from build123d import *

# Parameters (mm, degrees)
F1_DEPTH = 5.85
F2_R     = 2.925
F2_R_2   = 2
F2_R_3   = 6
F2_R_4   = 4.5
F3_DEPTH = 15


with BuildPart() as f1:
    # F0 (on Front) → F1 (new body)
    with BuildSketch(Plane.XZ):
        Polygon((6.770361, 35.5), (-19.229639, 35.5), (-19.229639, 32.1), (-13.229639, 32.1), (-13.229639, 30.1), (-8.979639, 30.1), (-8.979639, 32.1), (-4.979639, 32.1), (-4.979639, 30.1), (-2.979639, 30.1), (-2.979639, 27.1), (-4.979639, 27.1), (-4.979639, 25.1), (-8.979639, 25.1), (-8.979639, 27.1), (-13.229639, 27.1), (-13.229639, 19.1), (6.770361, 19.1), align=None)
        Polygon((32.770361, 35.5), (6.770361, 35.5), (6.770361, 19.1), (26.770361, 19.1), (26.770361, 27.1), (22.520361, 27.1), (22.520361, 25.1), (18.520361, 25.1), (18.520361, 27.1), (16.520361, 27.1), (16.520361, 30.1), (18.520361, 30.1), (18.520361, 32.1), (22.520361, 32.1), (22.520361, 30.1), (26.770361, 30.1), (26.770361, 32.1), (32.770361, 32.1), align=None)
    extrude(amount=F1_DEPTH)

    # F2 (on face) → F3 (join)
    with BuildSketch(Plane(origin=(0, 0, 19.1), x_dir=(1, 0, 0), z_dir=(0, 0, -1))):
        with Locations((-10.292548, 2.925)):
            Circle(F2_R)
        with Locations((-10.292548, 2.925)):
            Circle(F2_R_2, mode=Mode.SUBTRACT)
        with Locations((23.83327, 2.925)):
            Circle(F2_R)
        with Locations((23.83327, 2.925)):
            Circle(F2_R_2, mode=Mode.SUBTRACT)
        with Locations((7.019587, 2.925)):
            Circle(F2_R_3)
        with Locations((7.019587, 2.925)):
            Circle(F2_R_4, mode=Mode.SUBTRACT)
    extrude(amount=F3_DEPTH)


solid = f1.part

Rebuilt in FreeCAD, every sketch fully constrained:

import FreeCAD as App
import Part
import Sketcher
Q = App.Units.Quantity

doc = App.newDocument("Part")
body = doc.addObject("PartDesign::Body", "Body")

# Sketch on XZ plane
sketch1 = body.newObject("Sketcher::SketchObject", "Sketch")
sketch1.AttachmentSupport = (doc.getObject("XZ_Plane"), [""])
sketch1.MapMode = "FlatFace"
sketch1.addGeometry(Part.LineSegment(App.Vector(-19.2, 35.5, 0), App.Vector(-19.2, 32.1, 0)), False)
sketch1.addGeometry(Part.LineSegment(App.Vector(-19.2, 32.1, 0), App.Vector(-13.2, 32.1, 0)), False)
sketch1.addGeometry(Part.LineSegment(App.Vector(-13.2, 32.1, 0), App.Vector(-13.2, 30.1, 0)), False)
sketch1.addGeometry(Part.LineSegment(App.Vector(-13.2, 30.1, 0), App.Vector(-9, 30.1, 0)), False)
sketch1.addGeometry(Part.LineSegment(App.Vector(-9, 30.1, 0), App.Vector(-9, 32.1, 0)), False)
sketch1.addGeometry(Part.LineSegment(App.Vector(-9, 32.1, 0), App.Vector(-5, 32.1, 0)), False)
sketch1.addGeometry(Part.LineSegment(App.Vector(-5, 32.1, 0), App.Vector(-5, 30.1, 0)), False)
sketch1.addGeometry(Part.LineSegment(App.Vector(-5, 30.1, 0), App.Vector(-3, 30.1, 0)), False)
sketch1.addGeometry(Part.LineSegment(App.Vector(-3, 30.1, 0), App.Vector(-3, 27.1, 0)), False)
sketch1.addGeometry(Part.LineSegment(App.Vector(-3, 27.1, 0), App.Vector(-5, 27.1, 0)), False)
sketch1.addGeometry(Part.LineSegment(App.Vector(-5, 27.1, 0), App.Vector(-5, 25.1, 0)), False)
sketch1.addGeometry(Part.LineSegment(App.Vector(-5, 25.1, 0), App.Vector(-9, 25.1, 0)), False)
sketch1.addGeometry(Part.LineSegment(App.Vector(-9, 25.1, 0), App.Vector(-9, 27.1, 0)), False)
sketch1.addGeometry(Part.LineSegment(App.Vector(-9, 27.1, 0), App.Vector(-13.2, 27.1, 0)), False)
sketch1.addGeometry(Part.LineSegment(App.Vector(-13.2, 27.1, 0), App.Vector(-13.2, 19.1, 0)), False)
sketch1.addGeometry(Part.LineSegment(App.Vector(-13.2, 19.1, 0), App.Vector(26.8, 19.1, 0)), False)
sketch1.addGeometry(Part.LineSegment(App.Vector(26.8, 19.1, 0), App.Vector(26.8, 27.1, 0)), False)
sketch1.addGeometry(Part.LineSegment(App.Vector(26.8, 27.1, 0), App.Vector(22.5, 27.1, 0)), False)
sketch1.addGeometry(Part.LineSegment(App.Vector(22.5, 27.1, 0), App.Vector(22.5, 25.1, 0)), False)
sketch1.addGeometry(Part.LineSegment(App.Vector(22.5, 25.1, 0), App.Vector(18.5, 25.1, 0)), False)
sketch1.addGeometry(Part.LineSegment(App.Vector(18.5, 25.1, 0), App.Vector(18.5, 27.1, 0)), False)
sketch1.addGeometry(Part.LineSegment(App.Vector(18.5, 27.1, 0), App.Vector(16.5, 27.1, 0)), False)
sketch1.addGeometry(Part.LineSegment(App.Vector(16.5, 27.1, 0), App.Vector(16.5, 30.1, 0)), False)
sketch1.addGeometry(Part.LineSegment(App.Vector(16.5, 30.1, 0), App.Vector(18.5, 30.1, 0)), False)
sketch1.addGeometry(Part.LineSegment(App.Vector(18.5, 30.1, 0), App.Vector(18.5, 32.1, 0)), False)
sketch1.addGeometry(Part.LineSegment(App.Vector(18.5, 32.1, 0), App.Vector(22.5, 32.1, 0)), False)
sketch1.addGeometry(Part.LineSegment(App.Vector(22.5, 32.1, 0), App.Vector(22.5, 30.1, 0)), False)
sketch1.addGeometry(Part.LineSegment(App.Vector(22.5, 30.1, 0), App.Vector(26.8, 30.1, 0)), False)
sketch1.addGeometry(Part.LineSegment(App.Vector(26.8, 30.1, 0), App.Vector(26.8, 32.1, 0)), False)
sketch1.addGeometry(Part.LineSegment(App.Vector(26.8, 32.1, 0), App.Vector(32.8, 32.1, 0)), False)
sketch1.addGeometry(Part.LineSegment(App.Vector(32.8, 32.1, 0), App.Vector(32.8, 35.5, 0)), False)
sketch1.addGeometry(Part.LineSegment(App.Vector(32.8, 35.5, 0), App.Vector(-19.2, 35.5, 0)), False)
sketch1.addConstraint(Sketcher.Constraint("Coincident", 0, 2, 1, 1))
sketch1.addConstraint(Sketcher.Constraint("Coincident", 1, 2, 2, 1))
sketch1.addConstraint(Sketcher.Constraint("Coincident", 2, 2, 3, 1))
sketch1.addConstraint(Sketcher.Constraint("Coincident", 3, 2, 4, 1))
sketch1.addConstraint(Sketcher.Constraint("Coincident", 4, 2, 5, 1))
sketch1.addConstraint(Sketcher.Constraint("Coincident", 5, 2, 6, 1))
sketch1.addConstraint(Sketcher.Constraint("Coincident", 6, 2, 7, 1))
sketch1.addConstraint(Sketcher.Constraint("Coincident", 7, 2, 8, 1))
sketch1.addConstraint(Sketcher.Constraint("Coincident", 8, 2, 9, 1))
sketch1.addConstraint(Sketcher.Constraint("Coincident", 9, 2, 10, 1))
sketch1.addConstraint(Sketcher.Constraint("Coincident", 10, 2, 11, 1))
sketch1.addConstraint(Sketcher.Constraint("Coincident", 11, 2, 12, 1))
sketch1.addConstraint(Sketcher.Constraint("Coincident", 12, 2, 13, 1))
sketch1.addConstraint(Sketcher.Constraint("Coincident", 13, 2, 14, 1))
sketch1.addConstraint(Sketcher.Constraint("Coincident", 14, 2, 15, 1))
sketch1.addConstraint(Sketcher.Constraint("Coincident", 15, 2, 16, 1))
sketch1.addConstraint(Sketcher.Constraint("Coincident", 16, 2, 17, 1))
sketch1.addConstraint(Sketcher.Constraint("Coincident", 17, 2, 18, 1))
sketch1.addConstraint(Sketcher.Constraint("Coincident", 18, 2, 19, 1))
sketch1.addConstraint(Sketcher.Constraint("Coincident", 19, 2, 20, 1))
sketch1.addConstraint(Sketcher.Constraint("Coincident", 20, 2, 21, 1))
sketch1.addConstraint(Sketcher.Constraint("Coincident", 21, 2, 22, 1))
sketch1.addConstraint(Sketcher.Constraint("Coincident", 22, 2, 23, 1))
sketch1.addConstraint(Sketcher.Constraint("Coincident", 23, 2, 24, 1))
sketch1.addConstraint(Sketcher.Constraint("Coincident", 24, 2, 25, 1))
sketch1.addConstraint(Sketcher.Constraint("Coincident", 25, 2, 26, 1))
sketch1.addConstraint(Sketcher.Constraint("Coincident", 26, 2, 27, 1))
sketch1.addConstraint(Sketcher.Constraint("Coincident", 27, 2, 28, 1))
sketch1.addConstraint(Sketcher.Constraint("Coincident", 28, 2, 29, 1))
sketch1.addConstraint(Sketcher.Constraint("Coincident", 29, 2, 30, 1))
sketch1.addConstraint(Sketcher.Constraint("Coincident", 30, 2, 31, 1))
sketch1.addConstraint(Sketcher.Constraint("Coincident", 31, 2, 0, 1))
sketch1.addConstraint(Sketcher.Constraint("Vertical", 0))
sketch1.addConstraint(Sketcher.Constraint("Horizontal", 1))
sketch1.addConstraint(Sketcher.Constraint("Vertical", 2))
sketch1.addConstraint(Sketcher.Constraint("Horizontal", 3))
sketch1.addConstraint(Sketcher.Constraint("Vertical", 4))
sketch1.addConstraint(Sketcher.Constraint("Horizontal", 5))
sketch1.addConstraint(Sketcher.Constraint("Vertical", 6))
sketch1.addConstraint(Sketcher.Constraint("Horizontal", 7))
sketch1.addConstraint(Sketcher.Constraint("Vertical", 8))
sketch1.addConstraint(Sketcher.Constraint("Horizontal", 9))
sketch1.addConstraint(Sketcher.Constraint("Vertical", 10))
sketch1.addConstraint(Sketcher.Constraint("Horizontal", 11))
sketch1.addConstraint(Sketcher.Constraint("Vertical", 12))
sketch1.addConstraint(Sketcher.Constraint("Horizontal", 13))
sketch1.addConstraint(Sketcher.Constraint("Vertical", 14))
sketch1.addConstraint(Sketcher.Constraint("Horizontal", 15))
sketch1.addConstraint(Sketcher.Constraint("Vertical", 16))
sketch1.addConstraint(Sketcher.Constraint("Horizontal", 17))
sketch1.addConstraint(Sketcher.Constraint("Vertical", 18))
sketch1.addConstraint(Sketcher.Constraint("Horizontal", 19))
sketch1.addConstraint(Sketcher.Constraint("Vertical", 20))
sketch1.addConstraint(Sketcher.Constraint("Horizontal", 21))
sketch1.addConstraint(Sketcher.Constraint("Vertical", 22))
sketch1.addConstraint(Sketcher.Constraint("Horizontal", 23))
sketch1.addConstraint(Sketcher.Constraint("Vertical", 24))
sketch1.addConstraint(Sketcher.Constraint("Horizontal", 25))
sketch1.addConstraint(Sketcher.Constraint("Vertical", 26))
sketch1.addConstraint(Sketcher.Constraint("Horizontal", 27))
sketch1.addConstraint(Sketcher.Constraint("Vertical", 28))
sketch1.addConstraint(Sketcher.Constraint("Horizontal", 29))
sketch1.addConstraint(Sketcher.Constraint("Vertical", 30))
sketch1.addConstraint(Sketcher.Constraint("Horizontal", 31))
sketch1.addConstraint(Sketcher.Constraint("Horizontal", 1, 2, 4, 2))
sketch1.addConstraint(Sketcher.Constraint("Horizontal", 3, 2, 6, 2))
sketch1.addConstraint(Sketcher.Constraint("Horizontal", 9, 2, 12, 2))
sketch1.addConstraint(Sketcher.Constraint("Horizontal", 13, 2, 16, 2))
sketch1.addConstraint(Sketcher.Constraint("Horizontal", 11, 2, 18, 2))
sketch1.addConstraint(Sketcher.Constraint("Horizontal", 17, 2, 20, 2))
sketch1.addConstraint(Sketcher.Constraint("Horizontal", 7, 2, 22, 2))
sketch1.addConstraint(Sketcher.Constraint("Horizontal", 5, 2, 24, 2))
sketch1.addConstraint(Sketcher.Constraint("Horizontal", 23, 2, 26, 2))
sketch1.addConstraint(Sketcher.Constraint("Horizontal", 25, 2, 28, 2))
sketch1.addConstraint(Sketcher.Constraint("Vertical", 6, 2, 9, 2))
sketch1.addConstraint(Sketcher.Constraint("Vertical", 4, 2, 11, 2))
sketch1.addConstraint(Sketcher.Constraint("Vertical", 2, 2, 13, 2))
sketch1.addConstraint(Sketcher.Constraint("Vertical", 20, 2, 23, 2))
sketch1.addConstraint(Sketcher.Constraint("Vertical", 18, 2, 25, 2))
sketch1.addConstraint(Sketcher.Constraint("Vertical", 16, 2, 27, 2))
sketch1.addConstraint(Sketcher.Constraint("Equal", 13, 17))
sketch1.addConstraint(Sketcher.Constraint("Equal", 11, 19))
sketch1.addConstraint(Sketcher.Constraint("Equal", 9, 21))
sketch1.addConstraint(Sketcher.Constraint("Equal", 1, 29))
sketch1.addConstraint(Sketcher.Constraint("Equal", 23, 2))
sketch1.addConstraint(Sketcher.Constraint("Equal", 6, 10))
sketch1.addConstraint(Sketcher.Constraint("DistanceX", 1, 1, 1, 2, Q("6 mm")))
sketch1.addConstraint(Sketcher.Constraint("DistanceX", 5, 1, 5, 2, Q("4 mm")))
sketch1.addConstraint(Sketcher.Constraint("DistanceX", 7, 1, 7, 2, Q("2 mm")))
sketch1.addConstraint(Sketcher.Constraint("DistanceX", 15, 1, 15, 2, Q("40 mm")))
sketch1.addConstraint(Sketcher.Constraint("DistanceY", 8, 2, 8, 1, Q("3 mm")))
sketch1.addConstraint(Sketcher.Constraint("DistanceY", 14, 2, 14, 1, Q("8 mm")))
sketch1.addConstraint(Sketcher.Constraint("DistanceY", 0, 2, 0, 1, Q("3.4 mm")))
sketch1.addConstraint(Sketcher.Constraint("DistanceX", 3, 1, 3, 2, Q("4.25 mm")))
sketch1.addConstraint(Sketcher.Constraint("DistanceY", -1, 1, 0, 2, Q("32.1 mm")))
sketch1.addConstraint(Sketcher.Constraint("DistanceX", 0, 2, -1, 1, Q("19.229639 mm")))
pad1 = body.newObject("PartDesign::Pad", "Pad")
pad1.Profile = sketch1
pad1.Length = 5.85

# Sketch on XY plane
sketch2 = body.newObject("Sketcher::SketchObject", "Sketch001")
sketch2.AttachmentSupport = (doc.getObject("XY_Plane"), [""])
sketch2.MapMode = "FlatFace"
sketch2.AttachmentOffset = App.Placement(App.Vector(0, 0, 19.1), App.Rotation())
sketch2.addGeometry(Part.Circle(App.Vector(-10.3, -2.9, 0), App.Vector(0, 0, 1), 2.9), False)
sketch2.addGeometry(Part.Circle(App.Vector(-10.3, -2.9, 0), App.Vector(0, 0, 1), 2), False)
sketch2.addGeometry(Part.Circle(App.Vector(23.8, -2.9, 0), App.Vector(0, 0, 1), 2.9), False)
sketch2.addGeometry(Part.Circle(App.Vector(23.8, -2.9, 0), App.Vector(0, 0, 1), 2), False)
sketch2.addGeometry(Part.Circle(App.Vector(7, -2.9, 0), App.Vector(0, 0, 1), 6), False)
sketch2.addGeometry(Part.Circle(App.Vector(7, -2.9, 0), App.Vector(0, 0, 1), 4.5), False)
sketch2.addConstraint(Sketcher.Constraint("Coincident", 1, 3, 0, 3))
sketch2.addConstraint(Sketcher.Constraint("Coincident", 3, 3, 2, 3))
sketch2.addConstraint(Sketcher.Constraint("Coincident", 5, 3, 4, 3))
sketch2.addConstraint(Sketcher.Constraint("Equal", 0, 2))
sketch2.addConstraint(Sketcher.Constraint("Equal", 1, 3))
sketch2.addConstraint(Sketcher.Constraint("Horizontal", 1, 3, 2, 3))
sketch2.addConstraint(Sketcher.Constraint("Horizontal", 3, 3, 4, 3))
sketch2.addConstraint(Sketcher.Constraint("Diameter", 1, Q("4 mm")))
sketch2.addConstraint(Sketcher.Constraint("Diameter", 4, Q("12 mm")))
sketch2.addConstraint(Sketcher.Constraint("Diameter", 5, Q("9 mm")))
sketch2.addConstraint(Sketcher.Constraint("Diameter", 0, Q("5.85 mm")))
sketch2.addConstraint(Sketcher.Constraint("DistanceY", 0, 3, -1, 1, Q("2.925 mm")))
sketch2.addConstraint(Sketcher.Constraint("DistanceX", -1, 1, 2, 3, Q("23.83327 mm")))
sketch2.addConstraint(Sketcher.Constraint("DistanceX", 0, 3, -1, 1, Q("10.292548 mm")))
sketch2.addConstraint(Sketcher.Constraint("DistanceX", -1, 1, 4, 3, Q("7.019587 mm")))
pad2 = body.newObject("PartDesign::Pad", "Pad001")
pad2.Profile = sketch2
pad2.Length = 15
pad2.Reversed = True

doc.recompute()
